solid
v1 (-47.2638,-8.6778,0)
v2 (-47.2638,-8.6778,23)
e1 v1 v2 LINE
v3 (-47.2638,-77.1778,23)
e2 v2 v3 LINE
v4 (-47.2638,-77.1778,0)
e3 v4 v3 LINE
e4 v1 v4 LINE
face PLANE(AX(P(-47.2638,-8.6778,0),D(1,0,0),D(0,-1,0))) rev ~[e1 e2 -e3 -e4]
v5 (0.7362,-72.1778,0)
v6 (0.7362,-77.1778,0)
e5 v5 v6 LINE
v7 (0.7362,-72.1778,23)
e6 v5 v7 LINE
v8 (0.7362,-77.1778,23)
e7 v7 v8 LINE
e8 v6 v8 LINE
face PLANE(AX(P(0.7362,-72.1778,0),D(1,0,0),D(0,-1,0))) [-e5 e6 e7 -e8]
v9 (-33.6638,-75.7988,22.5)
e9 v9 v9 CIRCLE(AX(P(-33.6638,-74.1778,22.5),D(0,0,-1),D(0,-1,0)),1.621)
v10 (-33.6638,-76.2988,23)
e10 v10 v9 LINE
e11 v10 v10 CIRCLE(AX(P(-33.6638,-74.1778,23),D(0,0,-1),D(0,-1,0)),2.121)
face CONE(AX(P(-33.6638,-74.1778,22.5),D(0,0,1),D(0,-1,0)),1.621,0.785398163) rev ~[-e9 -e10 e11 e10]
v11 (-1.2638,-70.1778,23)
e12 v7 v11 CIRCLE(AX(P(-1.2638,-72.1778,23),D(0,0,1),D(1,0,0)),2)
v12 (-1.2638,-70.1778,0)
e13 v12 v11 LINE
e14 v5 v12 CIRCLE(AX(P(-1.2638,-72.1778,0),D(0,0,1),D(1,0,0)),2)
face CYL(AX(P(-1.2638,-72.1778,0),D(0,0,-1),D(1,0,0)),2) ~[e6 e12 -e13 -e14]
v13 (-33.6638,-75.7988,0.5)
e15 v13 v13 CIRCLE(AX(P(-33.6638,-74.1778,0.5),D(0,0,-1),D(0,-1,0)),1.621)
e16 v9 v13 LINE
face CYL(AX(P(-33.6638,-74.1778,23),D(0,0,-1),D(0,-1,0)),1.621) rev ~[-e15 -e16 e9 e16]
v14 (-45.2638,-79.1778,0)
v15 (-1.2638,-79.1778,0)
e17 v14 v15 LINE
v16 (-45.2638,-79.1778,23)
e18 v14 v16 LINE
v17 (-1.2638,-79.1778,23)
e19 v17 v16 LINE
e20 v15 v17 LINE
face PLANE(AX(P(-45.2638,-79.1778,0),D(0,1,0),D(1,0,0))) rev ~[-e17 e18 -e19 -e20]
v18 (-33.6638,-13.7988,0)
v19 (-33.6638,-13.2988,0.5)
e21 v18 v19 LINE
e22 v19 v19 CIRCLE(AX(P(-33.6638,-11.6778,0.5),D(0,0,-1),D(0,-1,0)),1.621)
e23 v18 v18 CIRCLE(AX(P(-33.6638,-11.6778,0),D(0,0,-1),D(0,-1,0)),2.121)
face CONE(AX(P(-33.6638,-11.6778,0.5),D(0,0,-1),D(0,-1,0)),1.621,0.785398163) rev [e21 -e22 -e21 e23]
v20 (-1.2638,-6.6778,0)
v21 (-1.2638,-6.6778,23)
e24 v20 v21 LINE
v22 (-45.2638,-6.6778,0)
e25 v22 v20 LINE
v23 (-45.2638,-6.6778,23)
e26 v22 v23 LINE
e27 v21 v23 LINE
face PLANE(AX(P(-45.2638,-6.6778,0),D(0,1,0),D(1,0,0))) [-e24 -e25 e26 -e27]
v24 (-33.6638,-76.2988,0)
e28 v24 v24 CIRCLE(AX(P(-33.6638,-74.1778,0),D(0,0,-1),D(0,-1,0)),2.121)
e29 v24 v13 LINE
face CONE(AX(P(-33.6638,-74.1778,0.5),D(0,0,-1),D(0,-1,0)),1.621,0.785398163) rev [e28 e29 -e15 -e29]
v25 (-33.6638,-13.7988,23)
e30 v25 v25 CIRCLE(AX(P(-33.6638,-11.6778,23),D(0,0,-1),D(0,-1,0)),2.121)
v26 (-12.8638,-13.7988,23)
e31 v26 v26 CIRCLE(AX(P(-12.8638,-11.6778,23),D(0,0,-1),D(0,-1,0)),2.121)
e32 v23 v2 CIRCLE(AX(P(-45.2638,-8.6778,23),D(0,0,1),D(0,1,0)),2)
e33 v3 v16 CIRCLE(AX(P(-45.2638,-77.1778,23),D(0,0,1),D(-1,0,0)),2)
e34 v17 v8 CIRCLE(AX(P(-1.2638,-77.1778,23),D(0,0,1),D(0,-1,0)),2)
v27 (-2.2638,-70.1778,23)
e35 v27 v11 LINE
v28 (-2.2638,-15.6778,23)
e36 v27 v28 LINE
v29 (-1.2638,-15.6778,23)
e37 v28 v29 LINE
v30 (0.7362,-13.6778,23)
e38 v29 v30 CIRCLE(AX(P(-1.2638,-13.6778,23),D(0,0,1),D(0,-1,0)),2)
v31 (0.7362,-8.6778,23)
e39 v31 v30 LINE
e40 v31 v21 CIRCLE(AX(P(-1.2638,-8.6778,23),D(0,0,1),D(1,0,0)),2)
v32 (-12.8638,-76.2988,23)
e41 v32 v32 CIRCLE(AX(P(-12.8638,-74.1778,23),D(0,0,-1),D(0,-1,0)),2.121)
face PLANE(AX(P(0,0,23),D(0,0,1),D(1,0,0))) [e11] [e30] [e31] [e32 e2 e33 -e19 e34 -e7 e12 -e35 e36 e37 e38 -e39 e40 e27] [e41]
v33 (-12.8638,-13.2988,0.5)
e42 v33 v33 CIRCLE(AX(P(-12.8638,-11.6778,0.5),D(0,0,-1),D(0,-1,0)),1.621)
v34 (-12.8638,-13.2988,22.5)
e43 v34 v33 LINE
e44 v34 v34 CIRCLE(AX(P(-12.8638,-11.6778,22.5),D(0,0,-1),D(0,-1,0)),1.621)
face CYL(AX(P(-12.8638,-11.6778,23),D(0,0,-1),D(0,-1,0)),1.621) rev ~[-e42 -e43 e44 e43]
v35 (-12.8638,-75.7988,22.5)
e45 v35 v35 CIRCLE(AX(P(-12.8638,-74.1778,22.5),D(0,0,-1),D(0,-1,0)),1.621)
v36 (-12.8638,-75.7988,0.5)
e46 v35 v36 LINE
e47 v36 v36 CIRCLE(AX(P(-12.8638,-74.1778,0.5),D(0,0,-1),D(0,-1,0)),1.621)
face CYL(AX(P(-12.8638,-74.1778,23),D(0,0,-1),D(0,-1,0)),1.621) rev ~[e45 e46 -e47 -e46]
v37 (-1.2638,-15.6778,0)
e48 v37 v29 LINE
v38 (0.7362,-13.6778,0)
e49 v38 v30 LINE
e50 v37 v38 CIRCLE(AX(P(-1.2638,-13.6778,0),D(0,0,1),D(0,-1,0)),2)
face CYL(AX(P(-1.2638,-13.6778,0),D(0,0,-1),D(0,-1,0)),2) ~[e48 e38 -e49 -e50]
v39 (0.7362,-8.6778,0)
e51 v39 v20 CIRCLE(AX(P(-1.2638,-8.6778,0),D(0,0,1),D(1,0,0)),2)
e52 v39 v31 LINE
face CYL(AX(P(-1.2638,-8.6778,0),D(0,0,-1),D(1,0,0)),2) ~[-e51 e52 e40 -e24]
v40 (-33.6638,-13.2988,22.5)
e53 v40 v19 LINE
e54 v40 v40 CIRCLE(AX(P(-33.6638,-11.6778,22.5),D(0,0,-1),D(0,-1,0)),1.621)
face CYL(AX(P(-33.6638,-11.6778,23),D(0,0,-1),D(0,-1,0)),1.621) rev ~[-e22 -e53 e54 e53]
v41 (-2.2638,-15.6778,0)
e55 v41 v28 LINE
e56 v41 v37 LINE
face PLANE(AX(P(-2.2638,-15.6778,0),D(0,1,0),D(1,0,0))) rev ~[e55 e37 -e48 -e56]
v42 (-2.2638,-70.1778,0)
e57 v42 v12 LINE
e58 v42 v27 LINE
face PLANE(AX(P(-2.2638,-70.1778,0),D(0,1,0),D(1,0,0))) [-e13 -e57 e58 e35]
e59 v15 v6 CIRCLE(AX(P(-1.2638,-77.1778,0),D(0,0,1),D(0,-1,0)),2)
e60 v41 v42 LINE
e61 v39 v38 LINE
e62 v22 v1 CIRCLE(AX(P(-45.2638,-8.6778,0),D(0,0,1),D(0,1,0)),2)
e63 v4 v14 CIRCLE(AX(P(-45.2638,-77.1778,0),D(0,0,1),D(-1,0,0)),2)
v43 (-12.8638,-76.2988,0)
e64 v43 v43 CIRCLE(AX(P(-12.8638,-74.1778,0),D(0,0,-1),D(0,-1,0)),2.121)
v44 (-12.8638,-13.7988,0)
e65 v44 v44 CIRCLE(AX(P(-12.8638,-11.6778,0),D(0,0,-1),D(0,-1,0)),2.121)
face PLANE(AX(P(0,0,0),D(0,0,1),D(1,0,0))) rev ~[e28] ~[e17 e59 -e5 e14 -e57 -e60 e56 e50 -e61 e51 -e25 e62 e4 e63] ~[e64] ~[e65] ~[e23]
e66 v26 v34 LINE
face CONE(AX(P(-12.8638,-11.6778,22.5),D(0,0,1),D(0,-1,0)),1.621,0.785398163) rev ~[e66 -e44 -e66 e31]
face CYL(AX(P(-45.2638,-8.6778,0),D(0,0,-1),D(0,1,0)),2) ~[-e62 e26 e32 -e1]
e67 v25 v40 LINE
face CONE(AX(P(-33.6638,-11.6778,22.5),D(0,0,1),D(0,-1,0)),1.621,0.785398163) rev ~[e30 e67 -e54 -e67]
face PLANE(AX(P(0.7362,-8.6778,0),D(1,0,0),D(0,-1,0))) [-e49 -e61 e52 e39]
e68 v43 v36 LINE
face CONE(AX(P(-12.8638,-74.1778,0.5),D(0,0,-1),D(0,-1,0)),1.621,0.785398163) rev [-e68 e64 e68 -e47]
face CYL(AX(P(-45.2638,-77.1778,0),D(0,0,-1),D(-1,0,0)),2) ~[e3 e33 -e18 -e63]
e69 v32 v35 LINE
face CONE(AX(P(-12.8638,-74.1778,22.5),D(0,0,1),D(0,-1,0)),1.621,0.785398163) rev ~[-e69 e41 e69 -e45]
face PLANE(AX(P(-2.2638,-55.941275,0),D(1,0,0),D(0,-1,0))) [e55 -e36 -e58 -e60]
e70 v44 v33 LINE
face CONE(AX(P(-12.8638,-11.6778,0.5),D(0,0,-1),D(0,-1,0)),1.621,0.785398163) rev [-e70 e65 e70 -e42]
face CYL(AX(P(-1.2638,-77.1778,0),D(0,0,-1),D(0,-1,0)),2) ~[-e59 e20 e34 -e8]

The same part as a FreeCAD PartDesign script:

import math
import FreeCAD as App
import Part
import Sketcher


def edges_at(feature, points):
    """Names of the edges that pass closest to the given points."""
    edges = feature.Shape.Edges
    near = lambda p: min(range(len(edges)), key=lambda i: edges[i].distToShape(Part.Vertex(*p))[0])
    return sorted({f"Edge{near(p) + 1}" for p in points})

doc = App.newDocument("Part")
body = doc.addObject("PartDesign::Body", "Body")

# Sketch on XY plane
sketch1 = body.newObject("Sketcher::SketchObject", "Sketch")
sketch1.AttachmentSupport = (doc.getObject("XY_Plane"), [""])
sketch1.MapMode = "FlatFace"
sketch1.addGeometry(Part.LineSegment(App.Vector(-45.3, -79.2, 0), App.Vector(-1.3, -79.2, 0)), False)
sketch1.addGeometry(Part.ArcOfCircle(Part.Circle(App.Vector(-1.3, -77.2, 0), App.Vector(0, 0, 1), 2), math.radians(-90), math.radians(0)), False)
sketch1.addGeometry(Part.LineSegment(App.Vector(0.7, -77.2, 0), App.Vector(0.7, -72.2, 0)), False)
sketch1.addGeometry(Part.ArcOfCircle(Part.Circle(App.Vector(-1.3, -72.2, 0), App.Vector(0, 0, 1), 2), math.radians(0), math.radians(90)), False)
sketch1.addGeometry(Part.LineSegment(App.Vector(-1.3, -70.2, 0), App.Vector(-2.3, -70.2, 0)), False)
sketch1.addGeometry(Part.LineSegment(App.Vector(-2.3, -70.2, 0), App.Vector(-2.3, -15.7, 0)), False)
sketch1.addGeometry(Part.LineSegment(App.Vector(-2.3, -15.7, 0), App.Vector(-1.3, -15.7, 0)), False)
sketch1.addGeometry(Part.ArcOfCircle(Part.Circle(App.Vector(-1.3, -13.7, 0), App.Vector(0, 0, 1), 2), math.radians(-90), math.radians(0)), False)
sketch1.addGeometry(Part.LineSegment(App.Vector(0.7, -13.7, 0), App.Vector(0.7, -8.7, 0)), False)
sketch1.addGeometry(Part.ArcOfCircle(Part.Circle(App.Vector(-1.3, -8.7, 0), App.Vector(0, 0, 1), 2), math.radians(0), math.radians(90)), False)
sketch1.addGeometry(Part.LineSegment(App.Vector(-1.3, -6.7, 0), App.Vector(-45.3, -6.7, 0)), False)
sketch1.addGeometry(Part.ArcOfCircle(Part.Circle(App.Vector(-45.3, -8.7, 0), App.Vector(0, 0, 1), 2), math.radians(90), math.radians(180)), False)
sketch1.addGeometry(Part.LineSegment(App.Vector(-47.3, -8.7, 0), App.Vector(-47.3, -77.2, 0)), False)
sketch1.addGeometry(Part.ArcOfCircle(Part.Circle(App.Vector(-45.3, -77.2, 0), App.Vector(0, 0, 1), 2), math.radians(180), math.radians(270)), False)
sketch1.addConstraint(Sketcher.Constraint("Tangent", 0, 2, 1, 1))
sketch1.addConstraint(Sketcher.Constraint("Tangent", 1, 2, 2, 1))
sketch1.addConstraint(Sketcher.Constraint("Tangent", 2, 2, 3, 1))
sketch1.addConstraint(Sketcher.Constraint("Tangent", 3, 2, 4, 1))
sketch1.addConstraint(Sketcher.Constraint("Coincident", 4, 2, 5, 1))
sketch1.addConstraint(Sketcher.Constraint("Coincident", 5, 2, 6, 1))
sketch1.addConstraint(Sketcher.Constraint("Tangent", 6, 2, 7, 1))
sketch1.addConstraint(Sketcher.Constraint("Tangent", 7, 2, 8, 1))
sketch1.addConstraint(Sketcher.Constraint("Tangent", 8, 2, 9, 1))
sketch1.addConstraint(Sketcher.Constraint("Tangent", 9, 2, 10, 1))
sketch1.addConstraint(Sketcher.Constraint("Tangent", 10, 2, 11, 1))
sketch1.addConstraint(Sketcher.Constraint("Tangent", 11, 2, 12, 1))
sketch1.addConstraint(Sketcher.Constraint("Tangent", 12, 2, 13, 1))
sketch1.addConstraint(Sketcher.Constraint("Tangent", 13, 2, 0, 1))
sketch1.addConstraint(Sketcher.Constraint("Horizontal", 0))
sketch1.addConstraint(Sketcher.Constraint("Vertical", 2))
sketch1.addConstraint(Sketcher.Constraint("Horizontal", 4))
sketch1.addConstraint(Sketcher.Constraint("Vertical", 5))
sketch1.addConstraint(Sketcher.Constraint("Horizontal", 6))
sketch1.addConstraint(Sketcher.Constraint("Vertical", 8))
sketch1.addConstraint(Sketcher.Constraint("Horizontal", 10))
sketch1.addConstraint(Sketcher.Constraint("Vertical", 12))
sketch1.addConstraint(Sketcher.Constraint("Equal", 1, 3))
sketch1.addConstraint(Sketcher.Constraint("Equal", 3, 7))
sketch1.addConstraint(Sketcher.Constraint("Equal", 7, 9))
sketch1.addConstraint(Sketcher.Constraint("Equal", 9, 11))
sketch1.addConstraint(Sketcher.Constraint("Equal", 11, 13))
sketch1.addConstraint(Sketcher.Constraint("Vertical", 3, 3, 7, 3))
sketch1.addConstraint(Sketcher.Constraint("Equal", 2, 8))
sketch1.addConstraint(Sketcher.Constraint("DistanceY", 2, 1, 2, 2, 5.0))
sketch1.addConstraint(Sketcher.Constraint("Radius", 1, 2.0))
sketch1.addConstraint(Sketcher.Constraint("DistanceX", 4, 2, 2, 2, 3.0))
sketch1.addConstraint(Sketcher.Constraint("DistanceX", 0, 1, 0, 2, 44.0))
sketch1.addConstraint(Sketcher.Constraint("DistanceY", 5, 1, 5, 2, 54.5))
sketch1.addConstraint(Sketcher.Constraint("DistanceX", 1, 3, -1, 1, 1.2638))
sketch1.addConstraint(Sketcher.Constraint("DistanceY", 1, 3, -1, 1, 77.1778))
pad1 = body.newObject("PartDesign::Pad", "Pad")
pad1.Profile = sketch1
pad1.Length = 23

# Sketch on XY plane
sketch2 = body.newObject("Sketcher::SketchObject", "Sketch001")
sketch2.AttachmentSupport = (doc.getObject("XY_Plane"), [""])
sketch2.MapMode = "FlatFace"
sketch2.AttachmentOffset = App.Placement(App.Vector(0, 0, 23), App.Rotation())
sketch2.addGeometry(Part.Circle(App.Vector(-12.9, -11.7, 0), App.Vector(0, 0, 1), 1.6), False)
sketch2.addGeometry(Part.Circle(App.Vector(-33.7, -11.7, 0), App.Vector(0, 0, 1), 1.6), False)
sketch2.addGeometry(Part.Circle(App.Vector(-33.7, -74.2, 0), App.Vector(0, 0, 1), 1.6), False)
sketch2.addGeometry(Part.Circle(App.Vector(-12.9, -74.2, 0), App.Vector(0, 0, 1), 1.6), False)
sketch2.addConstraint(Sketcher.Constraint("Equal", 0, 1))
sketch2.addConstraint(Sketcher.Constraint("Equal", 1, 2))
sketch2.addConstraint(Sketcher.Constraint("Equal", 2, 3))
sketch2.addConstraint(Sketcher.Constraint("Horizontal", 0, 3, 1, 3))
sketch2.addConstraint(Sketcher.Constraint("Horizontal", 2, 3, 3, 3))
sketch2.addConstraint(Sketcher.Constraint("Vertical", 1, 3, 2, 3))
sketch2.addConstraint(Sketcher.Constraint("Vertical", 0, 3, 3, 3))
sketch2.addConstraint(Sketcher.Constraint("Diameter", 0, 3.242))
sketch2.addConstraint(Sketcher.Constraint("DistanceX", 1, 3, 0, 3, 20.8))
sketch2.addConstraint(Sketcher.Constraint("DistanceY", 2, 3, 1, 3, 62.5))
sketch2.addConstraint(Sketcher.Constraint("DistanceX", 0, 3, -1, 1, 12.8638))
sketch2.addConstraint(Sketcher.Constraint("DistanceY", 0, 3, -1, 1, 11.6778))
doc.recompute()
hole = body.newObject("PartDesign::Hole", "Hole")
hole.Profile = sketch2
hole.ThreadType = "None"
hole.Diameter = 3.242
hole.DepthType = "ThroughAll"
doc.recompute()

chamfer = body.newObject("PartDesign::Chamfer", "Chamfer")
chamfer.Base = (hole, edges_at(hole, [
    (-33.664, -72.557, 23),
    (-12.864, -72.557, 23),
    (-33.664, -10.057, 23),
    (-12.864, -10.057, 23),
    (-33.664, -72.557, 0),
    (-12.864, -72.557, 0),
    (-33.664, -10.057, 0),
    (-12.864, -10.057, 0),
]))
chamfer.Size = 0.5

doc.recompute()
